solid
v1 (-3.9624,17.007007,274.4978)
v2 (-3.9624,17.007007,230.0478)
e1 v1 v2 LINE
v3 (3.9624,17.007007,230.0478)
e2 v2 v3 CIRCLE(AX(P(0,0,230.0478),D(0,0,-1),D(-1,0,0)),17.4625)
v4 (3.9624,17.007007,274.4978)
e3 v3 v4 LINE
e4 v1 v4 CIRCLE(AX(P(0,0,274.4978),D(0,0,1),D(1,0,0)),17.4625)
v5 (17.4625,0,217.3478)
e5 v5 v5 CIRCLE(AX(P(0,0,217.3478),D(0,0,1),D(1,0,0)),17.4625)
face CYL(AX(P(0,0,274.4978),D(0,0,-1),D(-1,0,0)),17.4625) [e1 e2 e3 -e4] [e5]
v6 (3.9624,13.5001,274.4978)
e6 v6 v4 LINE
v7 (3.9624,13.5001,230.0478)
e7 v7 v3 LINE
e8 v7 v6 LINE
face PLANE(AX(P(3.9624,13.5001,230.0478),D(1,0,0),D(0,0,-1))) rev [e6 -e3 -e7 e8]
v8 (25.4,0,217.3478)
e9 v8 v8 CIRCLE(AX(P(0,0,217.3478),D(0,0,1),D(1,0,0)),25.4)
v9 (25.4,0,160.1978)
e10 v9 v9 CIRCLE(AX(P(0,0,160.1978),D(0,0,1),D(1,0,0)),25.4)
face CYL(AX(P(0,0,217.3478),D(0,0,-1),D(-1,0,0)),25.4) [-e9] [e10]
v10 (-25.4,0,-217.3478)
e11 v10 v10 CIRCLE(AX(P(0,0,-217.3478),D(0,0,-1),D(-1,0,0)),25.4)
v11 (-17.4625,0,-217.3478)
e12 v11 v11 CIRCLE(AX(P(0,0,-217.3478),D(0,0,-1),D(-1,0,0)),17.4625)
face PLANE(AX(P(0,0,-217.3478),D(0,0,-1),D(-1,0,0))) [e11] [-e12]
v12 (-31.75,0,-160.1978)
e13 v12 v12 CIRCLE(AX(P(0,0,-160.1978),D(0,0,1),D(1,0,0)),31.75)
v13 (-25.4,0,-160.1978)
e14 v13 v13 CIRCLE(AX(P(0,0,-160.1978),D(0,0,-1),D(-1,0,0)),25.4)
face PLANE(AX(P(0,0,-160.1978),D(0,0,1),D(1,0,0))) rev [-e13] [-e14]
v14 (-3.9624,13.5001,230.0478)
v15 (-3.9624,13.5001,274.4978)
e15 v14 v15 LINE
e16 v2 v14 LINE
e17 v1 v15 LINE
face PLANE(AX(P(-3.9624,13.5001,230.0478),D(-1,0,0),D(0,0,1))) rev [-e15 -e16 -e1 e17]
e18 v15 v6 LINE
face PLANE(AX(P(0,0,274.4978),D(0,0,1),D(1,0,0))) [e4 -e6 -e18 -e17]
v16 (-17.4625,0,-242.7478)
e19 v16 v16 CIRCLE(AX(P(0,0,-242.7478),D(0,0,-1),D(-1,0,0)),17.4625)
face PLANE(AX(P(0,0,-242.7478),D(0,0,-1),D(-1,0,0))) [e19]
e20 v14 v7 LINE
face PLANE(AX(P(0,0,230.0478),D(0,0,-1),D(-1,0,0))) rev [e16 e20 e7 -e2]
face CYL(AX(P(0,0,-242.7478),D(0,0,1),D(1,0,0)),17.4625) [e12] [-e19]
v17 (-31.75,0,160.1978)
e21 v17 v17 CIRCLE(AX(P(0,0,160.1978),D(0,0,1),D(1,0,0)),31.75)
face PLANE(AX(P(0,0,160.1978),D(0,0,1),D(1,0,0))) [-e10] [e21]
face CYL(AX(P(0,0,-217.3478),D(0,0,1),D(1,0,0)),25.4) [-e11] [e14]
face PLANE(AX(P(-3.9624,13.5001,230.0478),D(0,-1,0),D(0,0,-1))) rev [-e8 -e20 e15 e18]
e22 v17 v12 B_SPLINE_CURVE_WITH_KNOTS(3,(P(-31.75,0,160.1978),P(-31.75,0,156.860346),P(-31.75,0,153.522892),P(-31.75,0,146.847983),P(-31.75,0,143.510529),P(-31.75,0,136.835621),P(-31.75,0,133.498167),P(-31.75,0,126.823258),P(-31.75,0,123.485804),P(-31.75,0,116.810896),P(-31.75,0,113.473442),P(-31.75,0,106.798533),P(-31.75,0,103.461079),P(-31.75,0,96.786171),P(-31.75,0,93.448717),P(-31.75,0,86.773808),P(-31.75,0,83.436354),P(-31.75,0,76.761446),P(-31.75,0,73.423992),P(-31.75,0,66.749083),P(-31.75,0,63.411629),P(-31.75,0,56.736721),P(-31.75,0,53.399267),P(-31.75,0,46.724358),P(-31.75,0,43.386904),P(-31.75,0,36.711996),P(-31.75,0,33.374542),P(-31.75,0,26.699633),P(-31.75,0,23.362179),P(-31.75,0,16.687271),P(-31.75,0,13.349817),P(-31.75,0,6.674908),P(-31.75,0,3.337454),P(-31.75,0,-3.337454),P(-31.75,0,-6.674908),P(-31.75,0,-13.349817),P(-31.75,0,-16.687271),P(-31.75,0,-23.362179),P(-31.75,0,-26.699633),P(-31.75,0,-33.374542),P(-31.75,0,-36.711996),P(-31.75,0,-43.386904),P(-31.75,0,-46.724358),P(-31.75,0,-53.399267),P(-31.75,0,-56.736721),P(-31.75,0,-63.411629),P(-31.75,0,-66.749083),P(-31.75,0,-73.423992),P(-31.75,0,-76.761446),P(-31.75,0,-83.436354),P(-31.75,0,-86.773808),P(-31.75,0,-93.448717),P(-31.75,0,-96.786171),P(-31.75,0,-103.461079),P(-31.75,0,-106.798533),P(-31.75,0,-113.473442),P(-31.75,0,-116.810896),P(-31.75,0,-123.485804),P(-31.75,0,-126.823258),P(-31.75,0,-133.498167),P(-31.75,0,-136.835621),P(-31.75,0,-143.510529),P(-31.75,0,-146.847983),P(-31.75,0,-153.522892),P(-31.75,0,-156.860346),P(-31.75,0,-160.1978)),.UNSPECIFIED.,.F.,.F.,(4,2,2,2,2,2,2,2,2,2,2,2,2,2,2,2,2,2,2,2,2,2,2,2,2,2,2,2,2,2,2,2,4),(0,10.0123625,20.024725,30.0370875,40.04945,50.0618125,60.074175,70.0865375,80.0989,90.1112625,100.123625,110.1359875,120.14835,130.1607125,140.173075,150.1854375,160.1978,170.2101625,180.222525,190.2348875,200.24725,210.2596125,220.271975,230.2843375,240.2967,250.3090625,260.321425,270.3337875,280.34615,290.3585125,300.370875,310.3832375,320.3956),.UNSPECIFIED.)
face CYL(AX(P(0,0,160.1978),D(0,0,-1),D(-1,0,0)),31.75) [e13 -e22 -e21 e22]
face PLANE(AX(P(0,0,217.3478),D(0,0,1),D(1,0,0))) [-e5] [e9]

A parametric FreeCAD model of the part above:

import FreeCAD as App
import Part
import Sketcher
from FreeCAD import Vector
Q = App.Units.Quantity


def add_polygon(sketch, points):
    """Adds a closed chain of lines whose ends are joined by coincident constraints."""
    first, n = sketch.GeometryCount, len(points)
    for a, b in zip(points, points[1:] + points[:1]):
        sketch.addGeometry(Part.LineSegment(App.Vector(*a, 0), App.Vector(*b, 0)), False)
    for i in range(n):
        sketch.addConstraint(Sketcher.Constraint("Coincident", first + i, 2, first + (i + 1) % n, 1))

doc = App.newDocument("Part")
body = doc.addObject("PartDesign::Body", "Body")

# Sketch on XY plane
sketch1 = doc.addObject("Sketcher::SketchObject", "Sketch")
body.addObject(sketch1)
sketch1.AttachmentSupport = (doc.XY_Plane, [""])
sketch1.MapMode = "FlatFace"
sketch1.addGeometry(Part.Circle(Vector(0, 0, 0), Vector(0, 0, 1), 32), False)
sketch1.addConstraint(Sketcher.Constraint("Coincident", 0, 3, -1, 1))
sketch1.addConstraint(Sketcher.Constraint("Diameter", 0, Q("2.5 in")))
pad1 = doc.addObject("PartDesign::Pad", "Pad")
body.addObject(pad1)
pad1.Profile = sketch1
pad1.Length = Q("12.614 in")
pad1.Midplane = True

# Sketch on XY plane
sketch2 = doc.addObject("Sketcher::SketchObject", "Sketch001")
body.addObject(sketch2)
sketch2.AttachmentSupport = (doc.XY_Plane, [""])
sketch2.MapMode = "FlatFace"
sketch2.AttachmentOffset = App.Placement(Vector(0, 0, 6.307 * 25.4), App.Rotation())
sketch2.addGeometry(Part.Circle(Vector(0, 0, 0), Vector(0, 0, 1), 25), False)
sketch2.addConstraint(Sketcher.Constraint("Coincident", 0, 3, -1, 1))
sketch2.addConstraint(Sketcher.Constraint("Diameter", 0, Q("2 in")))
pad2 = doc.addObject("PartDesign::Pad", "Pad001")
body.addObject(pad2)
pad2.Profile = sketch2
pad2.Length = Q("2.25 in")

# Sketch on XY plane
sketch3 = doc.addObject("Sketcher::SketchObject", "Sketch002")
body.addObject(sketch3)
sketch3.AttachmentSupport = (doc.XY_Plane, [""])
sketch3.MapMode = "FlatFace"
sketch3.AttachmentOffset = App.Placement(Vector(0, 0, -8.557 * 25.4), App.Rotation())
sketch3.addGeometry(Part.Circle(Vector(0, 0, 0), Vector(0, 0, 1), 25), False)
sketch3.addConstraint(Sketcher.Constraint("Coincident", 0, 3, -1, 1))
sketch3.addConstraint(Sketcher.Constraint("Diameter", 0, Q("2 in")))
pad3 = doc.addObject("PartDesign::Pad", "Pad002")
body.addObject(pad3)
pad3.Profile = sketch3
pad3.Length = Q("2.25 in")

# Sketch on XY plane
sketch4 = doc.addObject("Sketcher::SketchObject", "Sketch003")
body.addObject(sketch4)
sketch4.AttachmentSupport = (doc.XY_Plane, [""])
sketch4.MapMode = "FlatFace"
sketch4.AttachmentOffset = App.Placement(Vector(0, 0, -8.557 * 25.4), App.Rotation())
sketch4.addGeometry(Part.Circle(Vector(0, 0, 0), Vector(0, 0, 1), 17), False)
sketch4.addConstraint(Sketcher.Constraint("Coincident", 0, 3, -1, 1))
sketch4.addConstraint(Sketcher.Constraint("Diameter", 0, Q("1.375 in")))
pad4 = doc.addObject("PartDesign::Pad", "Pad003")
body.addObject(pad4)
pad4.Profile = sketch4
pad4.Length = Q("1 in")
pad4.Reversed = True

# Sketch on XY plane
sketch5 = doc.addObject("Sketcher::SketchObject", "Sketch004")
body.addObject(sketch5)
sketch5.AttachmentSupport = (doc.XY_Plane, [""])
sketch5.MapMode = "FlatFace"
sketch5.AttachmentOffset = App.Placement(Vector(0, 0, 10.807 * 25.4), App.Rotation())
sketch5.addGeometry(Part.Circle(Vector(0, 0, 0), Vector(0, 0, 1), 17), False)
sketch5.addConstraint(Sketcher.Constraint("Coincident", 0, 3, -1, 1))
sketch5.addConstraint(Sketcher.Constraint("Diameter", 0, Q("1.375 in")))
pad5 = doc.addObject("PartDesign::Pad", "Pad004")
body.addObject(pad5)
pad5.Profile = sketch5
pad5.Length = Q("2.25 in")
pad5.Reversed = True

# Sketch on XY plane
sketch6 = doc.addObject("Sketcher::SketchObject", "Sketch005")
body.addObject(sketch6)
sketch6.AttachmentSupport = (doc.XY_Plane, [""])
sketch6.MapMode = "FlatFace"
sketch6.AttachmentOffset = App.Placement(Vector(0, 0, 10.807 * 25.4), App.Rotation())
add_polygon(sketch6, [(-4, 21), (-4, 14), (4, 14), (4, 21)])  # lines 0-3
sketch6.addConstraint(Sketcher.Constraint("Vertical", 0))
sketch6.addConstraint(Sketcher.Constraint("Horizontal", 1))
sketch6.addConstraint(Sketcher.Constraint("Vertical", 2))
sketch6.addConstraint(Sketcher.Constraint("Horizontal", 3))
sketch6.addConstraint(Sketcher.Constraint("Equal", 3, 0))
sketch6.addConstraint(Sketcher.Constraint("DistanceX", 1, 1, 1, 2, Q("0.312 in")))
sketch6.addConstraint(Sketcher.Constraint("DistanceX", 0, 2, -1, 1, Q("0.156 in")))
sketch6.addConstraint(Sketcher.Constraint("DistanceY", -1, 1, 0, 2, Q("0.5315 in")))
pocket1 = doc.addObject("PartDesign::Pocket", "Pocket")
body.addObject(pocket1)
pocket1.Profile = sketch6
pocket1.Length = Q("1.75 in")

doc.recompute()
